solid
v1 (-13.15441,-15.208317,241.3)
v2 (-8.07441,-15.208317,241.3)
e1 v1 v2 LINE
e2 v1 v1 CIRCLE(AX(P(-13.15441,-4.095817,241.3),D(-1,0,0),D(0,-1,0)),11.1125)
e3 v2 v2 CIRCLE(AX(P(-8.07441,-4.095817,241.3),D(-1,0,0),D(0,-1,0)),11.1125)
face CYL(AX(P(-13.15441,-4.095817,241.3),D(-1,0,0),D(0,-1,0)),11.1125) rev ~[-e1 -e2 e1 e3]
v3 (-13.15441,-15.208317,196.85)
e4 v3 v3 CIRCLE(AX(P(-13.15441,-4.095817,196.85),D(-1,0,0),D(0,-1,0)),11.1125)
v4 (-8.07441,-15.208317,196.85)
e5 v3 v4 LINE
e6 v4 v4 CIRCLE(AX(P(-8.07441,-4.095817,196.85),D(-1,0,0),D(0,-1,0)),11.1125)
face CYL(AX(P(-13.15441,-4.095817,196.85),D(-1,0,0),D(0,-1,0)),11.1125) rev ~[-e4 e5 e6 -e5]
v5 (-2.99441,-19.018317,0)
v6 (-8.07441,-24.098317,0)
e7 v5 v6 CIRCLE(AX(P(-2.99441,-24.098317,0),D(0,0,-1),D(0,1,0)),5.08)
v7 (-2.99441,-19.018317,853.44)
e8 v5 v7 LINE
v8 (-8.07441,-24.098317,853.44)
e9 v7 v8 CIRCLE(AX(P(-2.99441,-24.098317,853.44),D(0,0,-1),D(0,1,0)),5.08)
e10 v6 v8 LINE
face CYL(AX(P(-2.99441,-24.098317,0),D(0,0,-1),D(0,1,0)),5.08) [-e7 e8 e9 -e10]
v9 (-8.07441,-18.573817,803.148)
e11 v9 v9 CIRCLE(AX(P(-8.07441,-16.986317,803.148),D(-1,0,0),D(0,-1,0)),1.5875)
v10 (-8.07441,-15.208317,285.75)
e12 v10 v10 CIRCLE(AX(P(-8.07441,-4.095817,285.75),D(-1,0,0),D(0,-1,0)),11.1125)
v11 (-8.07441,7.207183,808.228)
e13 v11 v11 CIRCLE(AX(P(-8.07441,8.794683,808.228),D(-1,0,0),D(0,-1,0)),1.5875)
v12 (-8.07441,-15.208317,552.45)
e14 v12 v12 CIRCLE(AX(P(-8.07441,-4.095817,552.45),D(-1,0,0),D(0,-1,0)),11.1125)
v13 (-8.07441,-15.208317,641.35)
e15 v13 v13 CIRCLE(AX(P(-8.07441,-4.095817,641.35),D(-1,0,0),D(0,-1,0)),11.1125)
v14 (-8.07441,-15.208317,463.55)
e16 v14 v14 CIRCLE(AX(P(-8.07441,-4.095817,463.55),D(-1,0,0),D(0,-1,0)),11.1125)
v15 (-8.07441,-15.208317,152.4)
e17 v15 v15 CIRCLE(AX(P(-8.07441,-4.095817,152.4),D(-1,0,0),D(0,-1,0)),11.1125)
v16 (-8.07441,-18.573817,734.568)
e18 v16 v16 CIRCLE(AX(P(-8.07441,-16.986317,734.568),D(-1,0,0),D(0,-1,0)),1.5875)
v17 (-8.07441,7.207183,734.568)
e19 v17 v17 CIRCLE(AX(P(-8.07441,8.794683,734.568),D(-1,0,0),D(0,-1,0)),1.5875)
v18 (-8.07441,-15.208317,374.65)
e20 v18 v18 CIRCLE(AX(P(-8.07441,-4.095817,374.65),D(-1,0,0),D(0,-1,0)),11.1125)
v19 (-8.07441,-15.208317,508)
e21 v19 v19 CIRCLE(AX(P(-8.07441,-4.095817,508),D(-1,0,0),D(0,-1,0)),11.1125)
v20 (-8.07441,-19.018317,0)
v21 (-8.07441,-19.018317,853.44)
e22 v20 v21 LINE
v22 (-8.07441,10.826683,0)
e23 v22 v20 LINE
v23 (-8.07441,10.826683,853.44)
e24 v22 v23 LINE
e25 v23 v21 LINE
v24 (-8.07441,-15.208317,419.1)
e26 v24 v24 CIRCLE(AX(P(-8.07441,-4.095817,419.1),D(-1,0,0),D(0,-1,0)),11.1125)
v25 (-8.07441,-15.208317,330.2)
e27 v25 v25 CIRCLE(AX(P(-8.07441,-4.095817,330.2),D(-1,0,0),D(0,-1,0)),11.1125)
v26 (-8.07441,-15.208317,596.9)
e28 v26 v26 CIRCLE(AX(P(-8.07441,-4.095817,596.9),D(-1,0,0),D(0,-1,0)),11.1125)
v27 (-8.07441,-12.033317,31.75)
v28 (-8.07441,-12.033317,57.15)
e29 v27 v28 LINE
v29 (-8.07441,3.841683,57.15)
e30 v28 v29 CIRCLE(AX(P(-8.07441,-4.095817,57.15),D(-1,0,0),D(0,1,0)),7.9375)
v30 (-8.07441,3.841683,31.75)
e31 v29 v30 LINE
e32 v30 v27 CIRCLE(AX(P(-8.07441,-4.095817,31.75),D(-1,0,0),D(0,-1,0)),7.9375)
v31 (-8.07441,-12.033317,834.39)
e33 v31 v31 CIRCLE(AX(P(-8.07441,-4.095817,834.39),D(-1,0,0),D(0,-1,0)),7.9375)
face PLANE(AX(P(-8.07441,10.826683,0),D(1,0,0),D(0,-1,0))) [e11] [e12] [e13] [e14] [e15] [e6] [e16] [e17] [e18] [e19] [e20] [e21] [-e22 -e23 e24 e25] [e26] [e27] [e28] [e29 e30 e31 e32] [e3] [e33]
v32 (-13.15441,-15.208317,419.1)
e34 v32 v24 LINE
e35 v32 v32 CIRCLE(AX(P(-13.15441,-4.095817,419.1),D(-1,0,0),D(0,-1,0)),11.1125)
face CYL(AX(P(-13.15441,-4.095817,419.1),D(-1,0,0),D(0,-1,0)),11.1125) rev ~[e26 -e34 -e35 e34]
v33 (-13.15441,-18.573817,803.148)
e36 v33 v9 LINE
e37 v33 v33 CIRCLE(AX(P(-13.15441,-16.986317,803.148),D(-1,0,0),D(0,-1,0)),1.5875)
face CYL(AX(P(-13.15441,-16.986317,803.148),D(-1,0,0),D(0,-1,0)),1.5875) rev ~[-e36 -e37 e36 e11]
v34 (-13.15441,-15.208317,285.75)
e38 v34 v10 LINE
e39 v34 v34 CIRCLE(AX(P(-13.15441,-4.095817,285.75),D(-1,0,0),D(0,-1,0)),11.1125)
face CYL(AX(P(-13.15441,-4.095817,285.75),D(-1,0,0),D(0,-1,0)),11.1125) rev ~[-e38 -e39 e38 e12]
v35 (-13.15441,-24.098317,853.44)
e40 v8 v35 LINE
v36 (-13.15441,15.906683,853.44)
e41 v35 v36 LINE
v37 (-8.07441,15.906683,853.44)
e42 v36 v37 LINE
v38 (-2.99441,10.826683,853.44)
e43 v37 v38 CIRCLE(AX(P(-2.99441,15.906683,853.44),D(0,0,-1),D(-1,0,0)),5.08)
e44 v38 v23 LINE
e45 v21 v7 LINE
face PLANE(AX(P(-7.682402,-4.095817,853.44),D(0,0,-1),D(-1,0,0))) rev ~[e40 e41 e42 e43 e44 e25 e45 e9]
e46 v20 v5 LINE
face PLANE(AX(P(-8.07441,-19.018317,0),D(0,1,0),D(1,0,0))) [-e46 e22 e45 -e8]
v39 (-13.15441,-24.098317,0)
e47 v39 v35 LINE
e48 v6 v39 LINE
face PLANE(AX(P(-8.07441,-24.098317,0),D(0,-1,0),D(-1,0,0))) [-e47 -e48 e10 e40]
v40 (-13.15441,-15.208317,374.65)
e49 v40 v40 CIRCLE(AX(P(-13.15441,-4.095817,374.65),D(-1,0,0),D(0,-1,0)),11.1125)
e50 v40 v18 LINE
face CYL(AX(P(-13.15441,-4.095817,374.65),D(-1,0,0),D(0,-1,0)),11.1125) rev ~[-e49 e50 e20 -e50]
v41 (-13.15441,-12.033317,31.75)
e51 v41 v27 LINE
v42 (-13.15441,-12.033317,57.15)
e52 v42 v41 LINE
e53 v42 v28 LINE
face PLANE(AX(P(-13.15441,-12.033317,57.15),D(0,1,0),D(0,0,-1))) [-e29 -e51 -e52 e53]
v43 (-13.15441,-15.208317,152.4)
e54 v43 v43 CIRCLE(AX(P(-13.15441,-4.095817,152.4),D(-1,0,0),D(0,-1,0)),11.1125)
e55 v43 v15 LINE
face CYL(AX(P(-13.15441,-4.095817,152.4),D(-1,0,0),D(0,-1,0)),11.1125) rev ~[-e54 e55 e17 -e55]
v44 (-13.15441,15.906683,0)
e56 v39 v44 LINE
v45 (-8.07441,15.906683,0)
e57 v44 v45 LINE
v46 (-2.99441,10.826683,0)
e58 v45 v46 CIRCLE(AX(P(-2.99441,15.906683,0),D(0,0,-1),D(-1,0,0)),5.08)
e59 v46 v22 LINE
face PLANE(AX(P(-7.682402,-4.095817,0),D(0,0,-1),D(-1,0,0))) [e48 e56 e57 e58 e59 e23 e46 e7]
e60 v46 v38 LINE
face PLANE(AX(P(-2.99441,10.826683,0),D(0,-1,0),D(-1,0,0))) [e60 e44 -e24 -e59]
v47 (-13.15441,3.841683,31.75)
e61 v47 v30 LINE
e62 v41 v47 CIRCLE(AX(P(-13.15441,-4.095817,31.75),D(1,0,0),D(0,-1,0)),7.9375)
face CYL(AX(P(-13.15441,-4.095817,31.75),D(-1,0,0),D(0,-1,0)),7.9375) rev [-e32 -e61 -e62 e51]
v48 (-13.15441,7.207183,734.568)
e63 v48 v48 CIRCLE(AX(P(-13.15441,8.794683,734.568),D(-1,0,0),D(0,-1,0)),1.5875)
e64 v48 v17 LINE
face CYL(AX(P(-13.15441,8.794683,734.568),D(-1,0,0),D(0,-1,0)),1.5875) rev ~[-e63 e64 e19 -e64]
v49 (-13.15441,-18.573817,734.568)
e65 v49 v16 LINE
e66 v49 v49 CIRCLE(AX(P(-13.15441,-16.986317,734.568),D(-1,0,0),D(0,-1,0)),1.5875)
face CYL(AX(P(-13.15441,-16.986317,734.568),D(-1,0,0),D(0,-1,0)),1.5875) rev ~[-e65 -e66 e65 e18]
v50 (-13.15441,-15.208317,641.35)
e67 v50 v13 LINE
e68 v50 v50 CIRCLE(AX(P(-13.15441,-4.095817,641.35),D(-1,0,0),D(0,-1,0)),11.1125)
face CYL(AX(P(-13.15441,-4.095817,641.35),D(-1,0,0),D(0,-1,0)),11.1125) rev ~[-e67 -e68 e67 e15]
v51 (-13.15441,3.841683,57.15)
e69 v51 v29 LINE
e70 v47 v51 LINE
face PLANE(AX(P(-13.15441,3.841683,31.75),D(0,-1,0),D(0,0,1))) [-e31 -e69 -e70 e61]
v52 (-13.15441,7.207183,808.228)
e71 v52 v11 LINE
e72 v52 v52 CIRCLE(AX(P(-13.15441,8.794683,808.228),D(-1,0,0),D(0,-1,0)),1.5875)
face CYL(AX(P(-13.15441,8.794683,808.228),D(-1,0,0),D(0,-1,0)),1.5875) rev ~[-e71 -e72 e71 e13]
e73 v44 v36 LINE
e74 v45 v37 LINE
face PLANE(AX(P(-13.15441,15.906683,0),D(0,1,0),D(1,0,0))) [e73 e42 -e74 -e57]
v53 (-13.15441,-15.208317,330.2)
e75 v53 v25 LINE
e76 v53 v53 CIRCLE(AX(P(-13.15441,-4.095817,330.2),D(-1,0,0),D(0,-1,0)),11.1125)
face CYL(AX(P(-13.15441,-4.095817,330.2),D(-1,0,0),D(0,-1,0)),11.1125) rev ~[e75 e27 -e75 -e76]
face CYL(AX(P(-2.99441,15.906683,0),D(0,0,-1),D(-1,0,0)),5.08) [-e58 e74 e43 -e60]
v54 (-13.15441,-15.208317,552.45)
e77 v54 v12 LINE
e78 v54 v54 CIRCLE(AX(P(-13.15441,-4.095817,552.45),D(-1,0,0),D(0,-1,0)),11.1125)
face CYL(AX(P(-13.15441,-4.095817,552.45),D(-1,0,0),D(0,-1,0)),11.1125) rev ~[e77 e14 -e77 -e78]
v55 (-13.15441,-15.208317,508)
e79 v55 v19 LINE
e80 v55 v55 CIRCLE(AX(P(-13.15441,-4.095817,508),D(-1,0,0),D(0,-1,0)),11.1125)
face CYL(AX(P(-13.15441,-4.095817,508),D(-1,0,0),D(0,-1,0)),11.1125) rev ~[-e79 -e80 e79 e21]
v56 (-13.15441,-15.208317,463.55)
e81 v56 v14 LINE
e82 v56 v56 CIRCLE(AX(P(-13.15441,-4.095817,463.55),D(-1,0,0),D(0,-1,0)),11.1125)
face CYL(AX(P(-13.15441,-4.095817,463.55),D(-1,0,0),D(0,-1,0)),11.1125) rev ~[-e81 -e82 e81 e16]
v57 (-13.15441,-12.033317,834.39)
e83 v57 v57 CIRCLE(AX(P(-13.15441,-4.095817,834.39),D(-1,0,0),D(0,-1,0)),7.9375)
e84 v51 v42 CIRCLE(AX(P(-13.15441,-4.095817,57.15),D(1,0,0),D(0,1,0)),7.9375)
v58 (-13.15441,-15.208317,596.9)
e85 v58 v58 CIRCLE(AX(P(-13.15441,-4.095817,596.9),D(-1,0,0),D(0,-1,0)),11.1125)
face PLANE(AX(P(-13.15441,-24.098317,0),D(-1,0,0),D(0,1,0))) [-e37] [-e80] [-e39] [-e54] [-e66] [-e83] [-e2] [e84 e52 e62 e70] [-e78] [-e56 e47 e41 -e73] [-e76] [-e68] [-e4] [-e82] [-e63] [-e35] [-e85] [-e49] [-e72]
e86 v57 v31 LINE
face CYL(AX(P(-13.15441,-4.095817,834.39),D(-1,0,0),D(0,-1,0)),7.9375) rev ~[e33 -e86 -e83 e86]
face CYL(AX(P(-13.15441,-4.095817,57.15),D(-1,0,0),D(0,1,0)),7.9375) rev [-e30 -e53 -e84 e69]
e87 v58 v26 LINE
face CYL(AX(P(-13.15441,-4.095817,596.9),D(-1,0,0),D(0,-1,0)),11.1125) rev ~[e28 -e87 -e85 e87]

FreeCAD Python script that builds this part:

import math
import FreeCAD as App
import Part
import Sketcher
Q = App.Units.Quantity

doc = App.newDocument("Part")
params = doc.addObject("Spreadsheet::Sheet", "Params")
for row, (alias, value) in enumerate([
    ("sketch1_radius", "0.2 in"),
    ("sketch1_height", "1.575 in"),
    ("pad1_length", "33.6 in"),
    ("sketch2_diameter", "0.875 in"),
    ("pocket1_length", "1 in"),
    ("linearpattern_pitch", "1.75 in"),
    ("sketch3_height", "1 in"),
    ("sketch3_diameter", "0.625 in"),
    ("pocket2_length", "1 in"),
    ("sketch4_diameter", "0.125 in"),
    ("pocket3_length", "0.5 in"),
], start=1):
    params.set(f"A{row}", alias)
    params.set(f"B{row}", "=" + value)
    params.setAlias(f"B{row}", alias)

body = doc.addObject("PartDesign::Body", "Body")

# Sketch on XY plane
sketch1 = body.newObject("Sketcher::SketchObject", "Sketch")
sketch1.AttachmentSupport = (doc.getObject("XY_Plane"), [""])
sketch1.MapMode = "FlatFace"
sketch1.addGeometry([
    Part.LineSegment(App.Vector(-8.07441, 15.906683, 0), App.Vector(-13.15441, 15.906683, 0)),  # 0
    Part.LineSegment(App.Vector(-13.15441, 15.906683, 0), App.Vector(-13.15441, -24.098317, 0)),  # 1
    Part.LineSegment(App.Vector(-13.15441, -24.098317, 0), App.Vector(-8.07441, -24.098317, 0)),  # 2
    Part.ArcOfCircle(Part.Circle(App.Vector(-2.99441, -24.098317, 0), App.Vector(0, 0, 1), 5.08), math.radians(180), math.radians(450)),  # 3
    Part.LineSegment(App.Vector(-2.99441, -19.018317, 0), App.Vector(-8.07441, -19.018317, 0)),  # 4
    Part.LineSegment(App.Vector(-8.07441, -19.018317, 0), App.Vector(-8.07441, 10.826683, 0)),  # 5
    Part.LineSegment(App.Vector(-8.07441, 10.826683, 0), App.Vector(-2.99441, 10.826683, 0)),  # 6
    Part.ArcOfCircle(Part.Circle(App.Vector(-2.99441, 15.906683, 0), App.Vector(0, 0, 1), 5.08), math.radians(-90), math.radians(180)),  # 7
], False)
sketch1.addConstraint([
    Sketcher.Constraint("Coincident", 0, 2, 1, 1),
    Sketcher.Constraint("Coincident", 1, 2, 2, 1),
    Sketcher.Constraint("Coincident", 2, 2, 3, 1),
    Sketcher.Constraint("Tangent", 3, 2, 4, 1),
    Sketcher.Constraint("Coincident", 4, 2, 5, 1),
    Sketcher.Constraint("Coincident", 5, 2, 6, 1),
    Sketcher.Constraint("Tangent", 6, 2, 7, 1),
    Sketcher.Constraint("Coincident", 7, 2, 0, 1),
    Sketcher.Constraint("Horizontal", 0),
    Sketcher.Constraint("Vertical", 1),
    Sketcher.Constraint("Horizontal", 2),
    Sketcher.Constraint("Horizontal", 4),
    Sketcher.Constraint("Vertical", 5),
    Sketcher.Constraint("Horizontal", 6),
    Sketcher.Constraint("Equal", 3, 7),
    Sketcher.Constraint("Horizontal", 7, 3, 0, 2),
    Sketcher.Constraint("Horizontal", 3, 3, 1, 2),
    Sketcher.Constraint("Vertical", 3, 3, 7, 3),
    Sketcher.Constraint("Vertical", 2, 2, 4, 2),
    Sketcher.Constraint("Equal", 2, 4),
    Sketcher.Constraint("Radius", 3, Q("0.2 in")),
    Sketcher.Constraint("DistanceY", 1, 2, 1, 1, Q("1.575 in")),
    Sketcher.Constraint("DistanceX", 3, 3, -1, 1, 2.99441),
    Sketcher.Constraint("DistanceY", 3, 3, -1, 1, 24.098317),
])
sketch1.setExpression("Constraints[20]", "Params.sketch1_radius")
sketch1.setExpression("Constraints[21]", "Params.sketch1_height")
pad1 = body.newObject("PartDesign::Pad", "Pad")
pad1.Profile = sketch1
pad1.setExpression("Length", "Params.pad1_length")

# Sketch on YZ plane
sketch2 = body.newObject("Sketcher::SketchObject", "Sketch001")
sketch2.AttachmentSupport = (doc.getObject("YZ_Plane"), [""])
sketch2.MapMode = "FlatFace"
sketch2.AttachmentOffset = App.Placement(App.Vector(0, 0, -13.15441), App.Rotation())
sketch2.addGeometry(Part.Circle(App.Vector(-4.095817, 152.4, 0), App.Vector(0, 0, 1), 11.1125), False)
sketch2.addConstraint([
    Sketcher.Constraint("Diameter", 0, Q("0.875 in")),
    Sketcher.Constraint("DistanceY", -1, 1, 0, 3, Q("6 in")),
    Sketcher.Constraint("DistanceX", 0, 3, -1, 1, 4.095817),
])
sketch2.setExpression("Constraints[0]", "Params.sketch2_diameter")
pocket1 = body.newObject("PartDesign::Pocket", "Pocket")
pocket1.Profile = sketch2
pocket1.setExpression("Length", "Params.pocket1_length")
pocket1.Reversed = True
doc.recompute()

linearpattern = body.newObject("PartDesign::LinearPattern", "LinearPattern")
linearpattern.Originals = [pocket1]
linearpattern.Direction = (doc.getObject("Z_Axis"), [""])
linearpattern.Mode = "offset"
linearpattern.setExpression("Offset", "Params.linearpattern_pitch")
linearpattern.Occurrences = 12
body.Tip = linearpattern

# Sketch on YZ plane
sketch3 = body.newObject("Sketcher::SketchObject", "Sketch002")
sketch3.AttachmentSupport = (doc.getObject("YZ_Plane"), [""])
sketch3.MapMode = "FlatFace"
sketch3.AttachmentOffset = App.Placement(App.Vector(0, 0, -13.15441), App.Rotation())
sketch3.addGeometry([
    Part.Circle(App.Vector(-4.095817, 834.39, 0), App.Vector(0, 0, 1), 7.9375),  # 0
    Part.LineSegment(App.Vector(3.841683, 57.15, 0), App.Vector(3.841683, 31.75, 0)),  # 1
    Part.ArcOfCircle(Part.Circle(App.Vector(-4.095817, 31.75, 0), App.Vector(0, 0, 1), 7.9375), math.radians(180), math.radians(360)),  # 2
    Part.LineSegment(App.Vector(-12.033317, 31.75, 0), App.Vector(-12.033317, 57.15, 0)),  # 3
    Part.ArcOfCircle(Part.Circle(App.Vector(-4.095817, 57.15, 0), App.Vector(0, 0, 1), 7.9375), math.radians(0), math.radians(180)),  # 4
], False)
sketch3.addConstraint([
    Sketcher.Constraint("Tangent", 1, 2, 2, 2),
    Sketcher.Constraint("Tangent", 2, 1, 3, 1),
    Sketcher.Constraint("Tangent", 3, 2, 4, 2),
    Sketcher.Constraint("Tangent", 4, 1, 1, 1),
    Sketcher.Constraint("Vertical", 1),
    Sketcher.Constraint("Vertical", 3),
    Sketcher.Constraint("Equal", 0, 2),
    Sketcher.Constraint("Vertical", 0, 3, 2, 3),
    Sketcher.Constraint("DistanceY", 1, 2, 1, 1, Q("1 in")),
    Sketcher.Constraint("Diameter", 0, Q("0.625 in")),
    Sketcher.Constraint("DistanceY", 2, 3, 0, 3, Q("31.6 in")),
    Sketcher.Constraint("DistanceY", -1, 1, 0, 3, Q("32.85 in")),
    Sketcher.Constraint("DistanceX", 0, 3, -1, 1, 4.095817),
])
sketch3.setExpression("Constraints[8]", "Params.sketch3_height")
sketch3.setExpression("Constraints[9]", "Params.sketch3_diameter")
pocket2 = body.newObject("PartDesign::Pocket", "Pocket001")
pocket2.Profile = sketch3
pocket2.setExpression("Length", "Params.pocket2_length")
pocket2.Reversed = True

# Sketch on YZ plane
sketch4 = body.newObject("Sketcher::SketchObject", "Sketch003")
sketch4.AttachmentSupport = (doc.getObject("YZ_Plane"), [""])
sketch4.MapMode = "FlatFace"
sketch4.AttachmentOffset = App.Placement(App.Vector(0, 0, -13.15441), App.Rotation())
sketch4.addGeometry([
    Part.Circle(App.Vector(8.794683, 734.568, 0), App.Vector(0, 0, 1), 1.5875),
    Part.Circle(App.Vector(8.794683, 808.228, 0), App.Vector(0, 0, 1), 1.5875),
    Part.Circle(App.Vector(-16.986317, 803.148, 0), App.Vector(0, 0, 1), 1.5875),
    Part.Circle(App.Vector(-16.986317, 734.568, 0), App.Vector(0, 0, 1), 1.5875),
], False)
sketch4.addConstraint([
    Sketcher.Constraint("Equal", 0, 1),
    Sketcher.Constraint("Equal", 1, 2),
    Sketcher.Constraint("Equal", 2, 3),
    Sketcher.Constraint("Horizontal", 0, 3, 3, 3),
    Sketcher.Constraint("Vertical", 0, 3, 1, 3),
    Sketcher.Constraint("Vertical", 2, 3, 3, 3),
    Sketcher.Constraint("Diameter", 0, Q("0.125 in")),
    Sketcher.Constraint("DistanceY", 0, 3, 1, 3, Q("2.9 in")),
    Sketcher.Constraint("DistanceY", 2, 3, 1, 3, Q("0.2 in")),
    Sketcher.Constraint("DistanceY", -1, 1, 0, 3, Q("28.92 in")),
    Sketcher.Constraint("DistanceX", 2, 3, 1, 3, Q("1.015 in")),
    Sketcher.Constraint("DistanceX", -1, 1, 0, 3, 8.794683),
])
sketch4.setExpression("Constraints[6]", "Params.sketch4_diameter")
pocket3 = body.newObject("PartDesign::Pocket", "Pocket002")
pocket3.Profile = sketch4
pocket3.setExpression("Length", "Params.pocket3_length")
pocket3.Reversed = True

doc.recompute()
